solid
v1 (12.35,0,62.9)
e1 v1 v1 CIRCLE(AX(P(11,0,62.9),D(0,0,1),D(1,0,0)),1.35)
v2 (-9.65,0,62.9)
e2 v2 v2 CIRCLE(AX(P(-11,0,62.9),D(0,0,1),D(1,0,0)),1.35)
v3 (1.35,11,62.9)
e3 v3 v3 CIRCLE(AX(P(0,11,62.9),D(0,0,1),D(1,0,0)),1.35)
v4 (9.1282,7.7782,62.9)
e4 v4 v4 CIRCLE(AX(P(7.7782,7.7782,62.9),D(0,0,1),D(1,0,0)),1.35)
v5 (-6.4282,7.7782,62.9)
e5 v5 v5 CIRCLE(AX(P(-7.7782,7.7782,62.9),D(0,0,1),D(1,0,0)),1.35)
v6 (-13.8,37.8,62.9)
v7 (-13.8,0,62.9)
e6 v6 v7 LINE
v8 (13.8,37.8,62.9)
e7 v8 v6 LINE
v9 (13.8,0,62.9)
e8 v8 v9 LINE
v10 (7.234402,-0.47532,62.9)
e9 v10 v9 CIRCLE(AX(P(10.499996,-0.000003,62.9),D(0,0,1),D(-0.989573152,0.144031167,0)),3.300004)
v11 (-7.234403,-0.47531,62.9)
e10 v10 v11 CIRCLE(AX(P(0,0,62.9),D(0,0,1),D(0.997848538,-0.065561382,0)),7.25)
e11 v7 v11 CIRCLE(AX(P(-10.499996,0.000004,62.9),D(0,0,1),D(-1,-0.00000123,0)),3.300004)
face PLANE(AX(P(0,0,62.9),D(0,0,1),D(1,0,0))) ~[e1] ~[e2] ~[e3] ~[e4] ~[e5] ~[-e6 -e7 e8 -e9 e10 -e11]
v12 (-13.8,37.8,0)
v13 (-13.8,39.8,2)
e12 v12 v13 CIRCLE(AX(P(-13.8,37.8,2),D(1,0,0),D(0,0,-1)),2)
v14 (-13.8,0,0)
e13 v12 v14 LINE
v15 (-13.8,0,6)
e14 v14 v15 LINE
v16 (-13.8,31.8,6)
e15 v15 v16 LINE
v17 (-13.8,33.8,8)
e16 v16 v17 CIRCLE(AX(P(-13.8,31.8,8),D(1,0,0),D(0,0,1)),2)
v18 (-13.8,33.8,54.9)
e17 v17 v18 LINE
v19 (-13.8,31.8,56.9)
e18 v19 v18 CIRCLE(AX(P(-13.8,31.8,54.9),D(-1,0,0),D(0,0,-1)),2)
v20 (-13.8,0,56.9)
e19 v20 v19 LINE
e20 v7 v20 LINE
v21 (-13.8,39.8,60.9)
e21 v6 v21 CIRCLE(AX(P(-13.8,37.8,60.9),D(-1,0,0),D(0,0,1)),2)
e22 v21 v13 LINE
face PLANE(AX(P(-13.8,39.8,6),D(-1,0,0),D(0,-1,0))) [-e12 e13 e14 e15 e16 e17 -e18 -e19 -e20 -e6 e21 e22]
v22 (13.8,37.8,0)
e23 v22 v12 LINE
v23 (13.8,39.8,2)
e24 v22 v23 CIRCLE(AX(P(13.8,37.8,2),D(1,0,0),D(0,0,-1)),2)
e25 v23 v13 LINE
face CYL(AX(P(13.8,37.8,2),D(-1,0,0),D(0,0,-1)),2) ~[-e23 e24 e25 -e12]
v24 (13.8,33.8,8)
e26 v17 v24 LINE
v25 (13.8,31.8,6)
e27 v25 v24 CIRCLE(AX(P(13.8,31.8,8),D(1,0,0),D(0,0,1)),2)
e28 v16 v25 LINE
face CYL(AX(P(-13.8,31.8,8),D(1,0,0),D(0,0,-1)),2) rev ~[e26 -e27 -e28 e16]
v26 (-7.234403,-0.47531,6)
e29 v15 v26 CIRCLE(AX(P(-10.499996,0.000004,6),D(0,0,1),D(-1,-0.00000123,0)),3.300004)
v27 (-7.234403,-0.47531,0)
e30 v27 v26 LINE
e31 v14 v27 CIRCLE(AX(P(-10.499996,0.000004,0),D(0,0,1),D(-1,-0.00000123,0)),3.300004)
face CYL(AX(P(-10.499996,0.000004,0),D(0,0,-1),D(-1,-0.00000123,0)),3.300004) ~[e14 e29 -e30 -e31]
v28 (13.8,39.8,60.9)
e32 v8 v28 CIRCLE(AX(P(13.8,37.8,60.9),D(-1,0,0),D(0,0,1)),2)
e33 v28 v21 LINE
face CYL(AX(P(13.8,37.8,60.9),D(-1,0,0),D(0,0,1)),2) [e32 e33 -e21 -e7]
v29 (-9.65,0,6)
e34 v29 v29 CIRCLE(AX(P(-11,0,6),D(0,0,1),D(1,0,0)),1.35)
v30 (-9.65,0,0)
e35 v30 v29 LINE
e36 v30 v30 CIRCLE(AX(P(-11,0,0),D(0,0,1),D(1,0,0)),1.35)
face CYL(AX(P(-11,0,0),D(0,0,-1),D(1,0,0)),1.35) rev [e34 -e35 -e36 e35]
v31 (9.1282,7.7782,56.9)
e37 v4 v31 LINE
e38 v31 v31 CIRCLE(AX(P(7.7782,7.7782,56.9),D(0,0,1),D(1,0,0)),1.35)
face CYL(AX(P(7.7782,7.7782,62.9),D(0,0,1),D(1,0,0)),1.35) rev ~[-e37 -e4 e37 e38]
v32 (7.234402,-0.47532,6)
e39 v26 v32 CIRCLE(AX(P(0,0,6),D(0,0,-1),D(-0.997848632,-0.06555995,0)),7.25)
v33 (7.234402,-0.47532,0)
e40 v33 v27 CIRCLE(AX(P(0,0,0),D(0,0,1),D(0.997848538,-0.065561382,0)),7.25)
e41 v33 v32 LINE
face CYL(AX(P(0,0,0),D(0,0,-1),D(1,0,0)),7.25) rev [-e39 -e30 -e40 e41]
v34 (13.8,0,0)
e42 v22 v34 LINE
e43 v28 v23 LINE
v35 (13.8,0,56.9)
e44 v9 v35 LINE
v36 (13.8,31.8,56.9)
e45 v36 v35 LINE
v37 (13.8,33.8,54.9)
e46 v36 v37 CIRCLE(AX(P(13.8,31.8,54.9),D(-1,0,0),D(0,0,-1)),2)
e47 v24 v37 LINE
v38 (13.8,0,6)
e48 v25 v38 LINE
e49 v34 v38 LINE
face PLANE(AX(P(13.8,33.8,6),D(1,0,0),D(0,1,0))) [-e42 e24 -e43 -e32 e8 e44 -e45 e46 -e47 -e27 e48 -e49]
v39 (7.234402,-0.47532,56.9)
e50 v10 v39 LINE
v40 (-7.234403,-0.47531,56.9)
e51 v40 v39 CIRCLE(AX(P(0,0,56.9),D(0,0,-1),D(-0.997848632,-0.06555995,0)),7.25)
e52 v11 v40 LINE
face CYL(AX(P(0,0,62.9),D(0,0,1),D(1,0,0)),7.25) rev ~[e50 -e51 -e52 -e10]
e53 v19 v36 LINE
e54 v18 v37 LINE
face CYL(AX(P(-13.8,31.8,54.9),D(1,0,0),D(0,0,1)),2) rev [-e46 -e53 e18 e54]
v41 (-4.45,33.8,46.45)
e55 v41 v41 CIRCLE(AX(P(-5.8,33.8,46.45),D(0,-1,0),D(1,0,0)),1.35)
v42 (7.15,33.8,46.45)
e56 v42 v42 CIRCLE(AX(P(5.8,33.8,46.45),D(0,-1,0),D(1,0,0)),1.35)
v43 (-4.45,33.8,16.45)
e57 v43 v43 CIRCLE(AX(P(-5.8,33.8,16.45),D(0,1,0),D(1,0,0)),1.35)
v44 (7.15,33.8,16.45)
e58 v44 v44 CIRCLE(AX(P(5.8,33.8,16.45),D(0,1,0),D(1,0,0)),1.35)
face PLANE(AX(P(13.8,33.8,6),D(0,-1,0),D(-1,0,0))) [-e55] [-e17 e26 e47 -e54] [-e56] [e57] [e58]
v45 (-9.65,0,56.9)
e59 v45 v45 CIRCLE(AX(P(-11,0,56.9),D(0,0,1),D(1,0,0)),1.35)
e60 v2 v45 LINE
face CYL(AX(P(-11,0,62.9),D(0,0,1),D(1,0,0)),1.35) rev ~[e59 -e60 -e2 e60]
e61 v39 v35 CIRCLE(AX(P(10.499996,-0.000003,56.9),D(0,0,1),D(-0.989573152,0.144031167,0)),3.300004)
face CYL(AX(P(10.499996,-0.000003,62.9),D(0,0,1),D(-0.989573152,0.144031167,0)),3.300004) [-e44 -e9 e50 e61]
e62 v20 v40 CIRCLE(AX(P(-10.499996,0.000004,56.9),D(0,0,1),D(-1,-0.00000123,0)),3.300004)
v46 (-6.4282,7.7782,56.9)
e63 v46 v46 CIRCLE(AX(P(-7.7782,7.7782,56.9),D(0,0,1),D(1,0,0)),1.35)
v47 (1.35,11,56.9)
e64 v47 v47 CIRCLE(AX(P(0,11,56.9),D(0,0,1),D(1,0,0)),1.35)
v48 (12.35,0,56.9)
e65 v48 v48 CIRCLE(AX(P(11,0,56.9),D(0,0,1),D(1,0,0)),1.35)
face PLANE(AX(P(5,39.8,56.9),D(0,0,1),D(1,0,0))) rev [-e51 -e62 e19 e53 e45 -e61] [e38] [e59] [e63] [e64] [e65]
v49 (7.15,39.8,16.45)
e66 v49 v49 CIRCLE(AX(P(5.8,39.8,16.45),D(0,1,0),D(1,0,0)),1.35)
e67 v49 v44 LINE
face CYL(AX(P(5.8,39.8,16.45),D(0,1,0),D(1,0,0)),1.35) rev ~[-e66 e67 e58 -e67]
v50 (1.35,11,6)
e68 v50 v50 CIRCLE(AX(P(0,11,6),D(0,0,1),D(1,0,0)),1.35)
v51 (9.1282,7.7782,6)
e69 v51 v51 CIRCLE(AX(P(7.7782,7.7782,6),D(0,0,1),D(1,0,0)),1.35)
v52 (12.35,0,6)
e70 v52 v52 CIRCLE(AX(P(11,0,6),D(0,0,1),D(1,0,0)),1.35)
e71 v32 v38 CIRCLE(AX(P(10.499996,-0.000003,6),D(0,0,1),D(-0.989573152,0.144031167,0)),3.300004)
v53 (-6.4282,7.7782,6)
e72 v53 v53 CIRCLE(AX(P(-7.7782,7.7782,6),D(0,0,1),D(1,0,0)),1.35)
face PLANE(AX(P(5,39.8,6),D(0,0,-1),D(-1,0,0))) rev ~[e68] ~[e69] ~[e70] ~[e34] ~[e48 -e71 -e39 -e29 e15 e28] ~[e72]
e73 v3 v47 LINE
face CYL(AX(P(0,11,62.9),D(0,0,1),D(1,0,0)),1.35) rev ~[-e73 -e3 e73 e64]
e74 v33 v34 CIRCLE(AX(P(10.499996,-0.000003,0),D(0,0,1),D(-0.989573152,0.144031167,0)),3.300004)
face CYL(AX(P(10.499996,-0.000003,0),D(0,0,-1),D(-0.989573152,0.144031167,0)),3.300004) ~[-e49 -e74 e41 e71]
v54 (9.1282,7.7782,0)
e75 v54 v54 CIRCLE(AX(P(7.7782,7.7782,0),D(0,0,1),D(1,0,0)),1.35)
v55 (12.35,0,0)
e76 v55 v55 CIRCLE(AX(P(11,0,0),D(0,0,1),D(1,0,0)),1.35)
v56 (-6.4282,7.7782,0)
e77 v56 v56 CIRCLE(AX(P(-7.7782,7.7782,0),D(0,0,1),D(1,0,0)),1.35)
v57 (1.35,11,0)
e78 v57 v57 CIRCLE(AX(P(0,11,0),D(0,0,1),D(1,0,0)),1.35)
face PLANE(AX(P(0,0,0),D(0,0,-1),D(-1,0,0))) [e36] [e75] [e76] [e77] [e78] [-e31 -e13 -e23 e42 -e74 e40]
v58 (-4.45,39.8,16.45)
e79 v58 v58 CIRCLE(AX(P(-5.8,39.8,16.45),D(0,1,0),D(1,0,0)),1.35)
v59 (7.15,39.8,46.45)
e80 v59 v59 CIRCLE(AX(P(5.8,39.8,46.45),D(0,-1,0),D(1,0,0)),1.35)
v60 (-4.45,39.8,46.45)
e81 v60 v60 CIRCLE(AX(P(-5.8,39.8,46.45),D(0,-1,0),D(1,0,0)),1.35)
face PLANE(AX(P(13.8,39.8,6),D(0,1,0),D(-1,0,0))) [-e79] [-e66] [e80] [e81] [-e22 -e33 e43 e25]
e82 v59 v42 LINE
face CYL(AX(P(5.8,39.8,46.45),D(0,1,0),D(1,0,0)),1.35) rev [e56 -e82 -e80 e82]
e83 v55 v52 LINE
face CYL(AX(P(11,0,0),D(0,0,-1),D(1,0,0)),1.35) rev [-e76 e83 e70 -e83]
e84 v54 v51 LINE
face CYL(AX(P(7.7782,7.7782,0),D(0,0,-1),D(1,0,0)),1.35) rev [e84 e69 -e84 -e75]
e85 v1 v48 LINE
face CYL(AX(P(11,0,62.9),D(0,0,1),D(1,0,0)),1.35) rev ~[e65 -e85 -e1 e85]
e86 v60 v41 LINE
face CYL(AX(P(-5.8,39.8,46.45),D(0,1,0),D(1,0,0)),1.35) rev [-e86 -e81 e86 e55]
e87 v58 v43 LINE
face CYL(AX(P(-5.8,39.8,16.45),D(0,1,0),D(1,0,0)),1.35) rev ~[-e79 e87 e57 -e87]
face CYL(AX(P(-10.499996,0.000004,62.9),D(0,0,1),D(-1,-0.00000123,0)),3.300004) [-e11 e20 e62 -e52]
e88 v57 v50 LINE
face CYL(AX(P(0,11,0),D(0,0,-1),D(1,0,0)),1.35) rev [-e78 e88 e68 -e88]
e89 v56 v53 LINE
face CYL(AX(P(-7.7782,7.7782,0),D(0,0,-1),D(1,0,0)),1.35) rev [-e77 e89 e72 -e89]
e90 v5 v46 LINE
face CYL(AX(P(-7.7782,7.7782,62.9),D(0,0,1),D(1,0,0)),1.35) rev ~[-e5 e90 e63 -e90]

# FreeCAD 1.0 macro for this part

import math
import FreeCAD as App
import Part
import Sketcher


def edges_at(feature, points):
    """Names of the edges that pass closest to the given points."""
    edges = feature.Shape.Edges
    near = lambda p: min(range(len(edges)), key=lambda i: edges[i].distToShape(Part.Vertex(*p))[0])
    return sorted({f"Edge{near(p) + 1}" for p in points})


def add_polygon(sketch, points):
    """Adds a closed chain of lines whose ends are joined by coincident constraints."""
    first, n = sketch.GeometryCount, len(points)
    for a, b in zip(points, points[1:] + points[:1]):
        sketch.addGeometry(Part.LineSegment(App.Vector(*a, 0), App.Vector(*b, 0)), False)
    for i in range(n):
        sketch.addConstraint(Sketcher.Constraint("Coincident", first + i, 2, first + (i + 1) % n, 1))

doc = App.newDocument("Part")
body = doc.addObject("PartDesign::Body", "Body")
body.AllowCompound = True

# Sketch on XY plane
sketch1 = body.newObject("Sketcher::SketchObject", "Sketch")
sketch1.AttachmentSupport = (doc.getObject("XY_Plane"), [""])
sketch1.MapMode = "FlatFace"
sketch1.addGeometry([
    Part.ArcOfCircle(Part.Circle(App.Vector(-10.5, 0, 0), App.Vector(0, 0, 1), 3.3), math.radians(180), math.radians(352)),  # 0
    Part.ArcOfCircle(Part.Circle(App.Vector(0, 0, 0), App.Vector(0, 0, 1), 7.2), math.radians(-4), math.radians(184)),  # 1
    Part.ArcOfCircle(Part.Circle(App.Vector(10.5, 0, 0), App.Vector(0, 0, 1), 3.3), math.radians(-172), math.radians(0)),  # 2
    Part.LineSegment(App.Vector(13.8, 0, 0), App.Vector(13.8, 33.8, 0)),  # 3
    Part.LineSegment(App.Vector(13.8, 33.8, 0), App.Vector(3, 33.8, 0)),  # 4
    Part.LineSegment(App.Vector(3, 33.8, 0), App.Vector(3, 39.8, 0)),  # 5
    Part.LineSegment(App.Vector(3, 39.8, 0), App.Vector(-3, 39.8, 0)),  # 6
    Part.LineSegment(App.Vector(-3, 39.8, 0), App.Vector(-3, 33.8, 0)),  # 7
    Part.LineSegment(App.Vector(-3, 33.8, 0), App.Vector(-13.8, 33.8, 0)),  # 8
    Part.LineSegment(App.Vector(-13.8, 33.8, 0), App.Vector(-13.8, 0, 0)),  # 9
    Part.Circle(App.Vector(7.8, 7.8, 0), App.Vector(0, 0, 1), 1.4),  # 10
    Part.Circle(App.Vector(-11, 0, 0), App.Vector(0, 0, 1), 1.4),  # 11
    Part.Circle(App.Vector(-7.8, 7.8, 0), App.Vector(0, 0, 1), 1.4),  # 12
    Part.Circle(App.Vector(0, 11, 0), App.Vector(0, 0, 1), 1.4),  # 13
    Part.Circle(App.Vector(11, 0, 0), App.Vector(0, 0, 1), 1.4),  # 14
], False)
sketch1.addConstraint([
    Sketcher.Constraint("Coincident", 0, 2, 1, 2),
    Sketcher.Constraint("Coincident", 1, 1, 2, 1),
    Sketcher.Constraint("Tangent", 2, 2, 3, 1),
    Sketcher.Constraint("Coincident", 3, 2, 4, 1),
    Sketcher.Constraint("Coincident", 4, 2, 5, 1),
    Sketcher.Constraint("Coincident", 5, 2, 6, 1),
    Sketcher.Constraint("Coincident", 6, 2, 7, 1),
    Sketcher.Constraint("Coincident", 7, 2, 8, 1),
    Sketcher.Constraint("Coincident", 8, 2, 9, 1),
    Sketcher.Constraint("Tangent", 9, 2, 0, 1),
    Sketcher.Constraint("Vertical", 3),
    Sketcher.Constraint("Horizontal", 4),
    Sketcher.Constraint("Vertical", 5),
    Sketcher.Constraint("Horizontal", 6),
    Sketcher.Constraint("Vertical", 7),
    Sketcher.Constraint("Horizontal", 8),
    Sketcher.Constraint("Vertical", 9),
    Sketcher.Constraint("Coincident", 1, 3, -1, 1),
    Sketcher.Constraint("Equal", 0, 2),
    Sketcher.Constraint("Equal", 10, 11),
    Sketcher.Constraint("Equal", 11, 12),
    Sketcher.Constraint("Equal", 12, 13),
    Sketcher.Constraint("Equal", 13, 14),
    Sketcher.Constraint("Symmetric", 0, 3, 2, 3, -1, 1),
    Sketcher.Constraint("Symmetric", 11, 3, 14, 3, -1, 1),
    Sketcher.Constraint("Symmetric", 10, 3, 12, 3, -2),
    Sketcher.Constraint("Symmetric", 4, 2, 7, 2, -2),
    Sketcher.Constraint("PointOnObject", 0, 3, -1),
    Sketcher.Constraint("PointOnObject", 11, 3, -1),
    Sketcher.Constraint("PointOnObject", 13, 3, -2),
    Sketcher.Constraint("Equal", 6, 5),
    Sketcher.Constraint("Diameter", 10, 2.7),
    Sketcher.Constraint("DistanceX", 6, 2, 6, 1, 6.0),
    Sketcher.Constraint("Radius", 1, 7.25),
    Sketcher.Constraint("Radius", 0, 3.3),
    Sketcher.Constraint("DistanceX", 4, 2, 4, 1, 10.8),
    Sketcher.Constraint("DistanceY", 3, 1, 3, 2, 33.8),
    Sketcher.Constraint("DistanceX", 11, 3, -1, 1, 11.0),
    Sketcher.Constraint("DistanceY", -1, 1, 13, 3, 11.0),
    Sketcher.Constraint("DistanceX", -1, 1, 10, 3, 7.7782),
    Sketcher.Constraint("DistanceY", -1, 1, 10, 3, 7.7782),
])
pad1 = body.newObject("PartDesign::Pad", "Pad")
pad1.Profile = sketch1
pad1.Length = 6

# Sketch on XZ plane
sketch2 = body.newObject("Sketcher::SketchObject", "Sketch001")
sketch2.AttachmentSupport = (doc.getObject("XZ_Plane"), [""])
sketch2.MapMode = "FlatFace"
sketch2.AttachmentOffset = App.Placement(App.Vector(0, 0, -39.8), App.Rotation())
sketch2.addGeometry([
    Part.Circle(App.Vector(-8, 3, 0), App.Vector(0, 0, 1), 1.4),
    Part.Circle(App.Vector(8, 3, 0), App.Vector(0, 0, 1), 1.4),
], False)
sketch2.addConstraint([
    Sketcher.Constraint("Equal", 0, 1),
    Sketcher.Constraint("Symmetric", 0, 3, 1, 3, -2),
    Sketcher.Constraint("Diameter", 0, 2.7),
    Sketcher.Constraint("DistanceX", 0, 3, -1, 1, 8.0),
    Sketcher.Constraint("DistanceY", -1, 1, 0, 3, 3.0),
])
pocket1 = body.newObject("PartDesign::Pocket", "Pocket")
pocket1.Profile = sketch2
pocket1.Length = 20
pocket1.Reversed = True

# Sketch on XY plane
sketch3 = body.newObject("Sketcher::SketchObject", "Sketch002")
sketch3.AttachmentSupport = (doc.getObject("XY_Plane"), [""])
sketch3.MapMode = "FlatFace"
sketch3.AttachmentOffset = App.Placement(App.Vector(0, 0, 6), App.Rotation())
add_polygon(sketch3, [(-10.6, 27.9), (-10.6, 25.7), (-5.4, 25.7), (-5.4, 27.9)])  # lines 0-3
add_polygon(sketch3, [(5.4, 27.9), (5.4, 25.7), (10.6, 25.7), (10.6, 27.9)])  # lines 4-7
sketch3.addConstraint([
    Sketcher.Constraint("Vertical", 0),
    Sketcher.Constraint("Horizontal", 1),
    Sketcher.Constraint("Vertical", 2),
    Sketcher.Constraint("Horizontal", 3),
    Sketcher.Constraint("Vertical", 4),
    Sketcher.Constraint("Horizontal", 5),
    Sketcher.Constraint("Vertical", 6),
    Sketcher.Constraint("Horizontal", 7),
    Sketcher.Constraint("Symmetric", 1, 2, 4, 2, -2),
    Sketcher.Constraint("Symmetric", 3, 2, 6, 2, -2),
    Sketcher.Constraint("DistanceX", 1, 1, 1, 2, 5.2),
    Sketcher.Constraint("DistanceY", 0, 2, 0, 1, 2.2),
    Sketcher.Constraint("DistanceX", 0, 2, 4, 2, 16.0),
    Sketcher.Constraint("DistanceY", -1, 1, 0, 2, 25.7),
])
pocket2 = body.newObject("PartDesign::Pocket", "Pocket001")
pocket2.Profile = sketch3
pocket2.Length = 20

# Sketch on XZ plane
sketch4 = body.newObject("Sketcher::SketchObject", "Sketch003")
sketch4.AttachmentSupport = (doc.getObject("XZ_Plane"), [""])
sketch4.MapMode = "FlatFace"
sketch4.AttachmentOffset = App.Placement(App.Vector(0, 0, -39.8), App.Rotation())
add_polygon(sketch4, [(5, 0), (-5, 0), (-5, 6), (5, 6)])  # lines 0-3
sketch4.addConstraint([
    Sketcher.Constraint("Horizontal", 0),
    Sketcher.Constraint("Vertical", 1),
    Sketcher.Constraint("Horizontal", 2),
    Sketcher.Constraint("Vertical", 3),
    Sketcher.Constraint("Symmetric", 0, 2, 3, 2, -1, 1),
    Sketcher.Constraint("DistanceX", 0, 2, 0, 1, 10.0),
    Sketcher.Constraint("DistanceY", 1, 1, 1, 2, 6.0),
])
pad2 = body.newObject("PartDesign::Pad", "Pad001")
pad2.Profile = sketch4
pad2.Length = 6

# Sketch on XY plane
sketch5 = body.newObject("Sketcher::SketchObject", "Sketch004")
sketch5.AttachmentSupport = (doc.getObject("XY_Plane"), [""])
sketch5.MapMode = "FlatFace"
sketch5.AttachmentOffset = App.Placement(App.Vector(0, 0, 6), App.Rotation())
add_polygon(sketch5, [(-14, 34), (14, 34), (14, 40), (-14, 40)])  # lines 0-3
sketch5.addConstraint([
    Sketcher.Constraint("Horizontal", 0),
    Sketcher.Constraint("Vertical", 1),
    Sketcher.Constraint("Horizontal", 2),
    Sketcher.Constraint("Vertical", 3),
    Sketcher.Constraint("DistanceY", 1, 1, 1, 2, 6.0),
    Sketcher.Constraint("DistanceX", 0, 1, 0, 2, 27.6),
    Sketcher.Constraint("DistanceX", -1, 1, 0, 2, 13.8),
    Sketcher.Constraint("DistanceY", -1, 1, 0, 2, 33.8),
])
pocket3 = body.newObject("PartDesign::Pocket", "Pocket002")
pocket3.Profile = sketch5
pocket3.Length = 10

# Sketch on XY plane
sketch6 = body.newObject("Sketcher::SketchObject", "Sketch005")
sketch6.AttachmentSupport = (doc.getObject("XY_Plane"), [""])
sketch6.MapMode = "FlatFace"
sketch6.AttachmentOffset = App.Placement(App.Vector(0, 0, 6), App.Rotation())
add_polygon(sketch6, [(14, 34), (-14, 34), (-14, 15), (14, 15)])  # lines 0-3
sketch6.addConstraint([
    Sketcher.Constraint("Horizontal", 0),
    Sketcher.Constraint("Vertical", 1),
    Sketcher.Constraint("Horizontal", 2),
    Sketcher.Constraint("Vertical", 3),
    Sketcher.Constraint("DistanceY", 1, 2, 1, 1, 19.0),
    Sketcher.Constraint("DistanceX", 0, 2, 0, 1, 27.6),
    Sketcher.Constraint("DistanceX", 0, 2, -1, 1, 13.8),
    Sketcher.Constraint("DistanceY", -1, 1, 0, 2, 33.8),
])
pad3 = body.newObject("PartDesign::Pad", "Pad002")
pad3.Profile = sketch6
pad3.Length = 6
pad3.Reversed = True

# Sketch on XY plane
sketch7 = body.newObject("Sketcher::SketchObject", "Sketch006")
sketch7.AttachmentSupport = (doc.getObject("XY_Plane"), [""])
sketch7.MapMode = "FlatFace"
sketch7.AttachmentOffset = App.Placement(App.Vector(0, 0, 6), App.Rotation())
add_polygon(sketch7, [(-14, 34), (14, 34), (14, 40), (-14, 40)])  # lines 0-3
sketch7.addConstraint([
    Sketcher.Constraint("Horizontal", 0),
    Sketcher.Constraint("Vertical", 1),
    Sketcher.Constraint("Horizontal", 2),
    Sketcher.Constraint("Vertical", 3),
    Sketcher.Constraint("DistanceY", 1, 1, 1, 2, 6.0),
    Sketcher.Constraint("DistanceX", 0, 1, 0, 2, 27.6),
    Sketcher.Constraint("DistanceX", -1, 1, 0, 2, 13.8),
    Sketcher.Constraint("DistanceY", -1, 1, 0, 2, 33.8),
])
pad4 = body.newObject("PartDesign::Pad", "Pad003")
pad4.Profile = sketch7
pad4.Length = 25.45

# Sketch on XY plane
sketch8 = body.newObject("Sketcher::SketchObject", "Sketch007")
sketch8.AttachmentSupport = (doc.getObject("XY_Plane"), [""])
sketch8.MapMode = "FlatFace"
sketch8.AttachmentOffset = App.Placement(App.Vector(0, 0, 6), App.Rotation())
add_polygon(sketch8, [(-14, 34), (-14, 40), (14, 40), (14, 34)])  # lines 0-3
sketch8.addConstraint([
    Sketcher.Constraint("Vertical", 0),
    Sketcher.Constraint("Horizontal", 1),
    Sketcher.Constraint("Vertical", 2),
    Sketcher.Constraint("Horizontal", 3),
    Sketcher.Constraint("DistanceY", 0, 1, 0, 2, 6.0),
    Sketcher.Constraint("DistanceX", 1, 1, 1, 2, 27.6),
    Sketcher.Constraint("DistanceX", 0, 2, -1, 1, 13.8),
    Sketcher.Constraint("DistanceY", -1, 1, 0, 2, 39.8),
])
pad5 = body.newObject("PartDesign::Pad", "Pad004")
pad5.Profile = sketch8
pad5.Length = 6
pad5.Reversed = True

# Sketch on XZ plane
sketch9 = body.newObject("Sketcher::SketchObject", "Sketch008")
sketch9.AttachmentSupport = (doc.getObject("XZ_Plane"), [""])
sketch9.MapMode = "FlatFace"
sketch9.AttachmentOffset = App.Placement(App.Vector(0, 0, -39.8), App.Rotation())
sketch9.addGeometry([
    Part.Circle(App.Vector(-5.8, 16.4, 0), App.Vector(0, 0, 1), 1.4),
    Part.Circle(App.Vector(5.8, 16.4, 0), App.Vector(0, 0, 1), 1.4),
], False)
sketch9.addConstraint([
    Sketcher.Constraint("Equal", 0, 1),
    Sketcher.Constraint("Symmetric", 0, 3, 1, 3, -2),
    Sketcher.Constraint("Diameter", 0, 2.7),
    Sketcher.Constraint("DistanceX", 0, 3, -1, 1, 5.8),
    Sketcher.Constraint("DistanceY", -1, 1, 0, 3, 16.45),
])
pocket4 = body.newObject("PartDesign::Pocket", "Pocket003")
pocket4.Profile = sketch9
pocket4.Length = 6
pocket4.Reversed = True
doc.recompute()

fillet = body.newObject("PartDesign::Fillet", "Fillet")
fillet.Base = (pocket4, edges_at(pocket4, [(0, 39.8, 0), (0, 33.8, 6)]))
fillet.Radius = 2
doc.recompute()

datumplane = body.newObject("PartDesign::Plane", "DatumPlane")
datumplane.AttachmentSupport = (doc.getObject("XY_Plane"), [""])
datumplane.MapMode = "FlatFace"
datumplane.AttachmentOffset = App.Placement(App.Vector(0, 0, 31.45), App.Rotation())
mirrored = body.newObject("PartDesign::Mirrored", "Mirrored")
mirrored.TransformMode = "Transform body"
mirrored.MirrorPlane = (datumplane, [""])
body.Tip = mirrored

doc.recompute()
